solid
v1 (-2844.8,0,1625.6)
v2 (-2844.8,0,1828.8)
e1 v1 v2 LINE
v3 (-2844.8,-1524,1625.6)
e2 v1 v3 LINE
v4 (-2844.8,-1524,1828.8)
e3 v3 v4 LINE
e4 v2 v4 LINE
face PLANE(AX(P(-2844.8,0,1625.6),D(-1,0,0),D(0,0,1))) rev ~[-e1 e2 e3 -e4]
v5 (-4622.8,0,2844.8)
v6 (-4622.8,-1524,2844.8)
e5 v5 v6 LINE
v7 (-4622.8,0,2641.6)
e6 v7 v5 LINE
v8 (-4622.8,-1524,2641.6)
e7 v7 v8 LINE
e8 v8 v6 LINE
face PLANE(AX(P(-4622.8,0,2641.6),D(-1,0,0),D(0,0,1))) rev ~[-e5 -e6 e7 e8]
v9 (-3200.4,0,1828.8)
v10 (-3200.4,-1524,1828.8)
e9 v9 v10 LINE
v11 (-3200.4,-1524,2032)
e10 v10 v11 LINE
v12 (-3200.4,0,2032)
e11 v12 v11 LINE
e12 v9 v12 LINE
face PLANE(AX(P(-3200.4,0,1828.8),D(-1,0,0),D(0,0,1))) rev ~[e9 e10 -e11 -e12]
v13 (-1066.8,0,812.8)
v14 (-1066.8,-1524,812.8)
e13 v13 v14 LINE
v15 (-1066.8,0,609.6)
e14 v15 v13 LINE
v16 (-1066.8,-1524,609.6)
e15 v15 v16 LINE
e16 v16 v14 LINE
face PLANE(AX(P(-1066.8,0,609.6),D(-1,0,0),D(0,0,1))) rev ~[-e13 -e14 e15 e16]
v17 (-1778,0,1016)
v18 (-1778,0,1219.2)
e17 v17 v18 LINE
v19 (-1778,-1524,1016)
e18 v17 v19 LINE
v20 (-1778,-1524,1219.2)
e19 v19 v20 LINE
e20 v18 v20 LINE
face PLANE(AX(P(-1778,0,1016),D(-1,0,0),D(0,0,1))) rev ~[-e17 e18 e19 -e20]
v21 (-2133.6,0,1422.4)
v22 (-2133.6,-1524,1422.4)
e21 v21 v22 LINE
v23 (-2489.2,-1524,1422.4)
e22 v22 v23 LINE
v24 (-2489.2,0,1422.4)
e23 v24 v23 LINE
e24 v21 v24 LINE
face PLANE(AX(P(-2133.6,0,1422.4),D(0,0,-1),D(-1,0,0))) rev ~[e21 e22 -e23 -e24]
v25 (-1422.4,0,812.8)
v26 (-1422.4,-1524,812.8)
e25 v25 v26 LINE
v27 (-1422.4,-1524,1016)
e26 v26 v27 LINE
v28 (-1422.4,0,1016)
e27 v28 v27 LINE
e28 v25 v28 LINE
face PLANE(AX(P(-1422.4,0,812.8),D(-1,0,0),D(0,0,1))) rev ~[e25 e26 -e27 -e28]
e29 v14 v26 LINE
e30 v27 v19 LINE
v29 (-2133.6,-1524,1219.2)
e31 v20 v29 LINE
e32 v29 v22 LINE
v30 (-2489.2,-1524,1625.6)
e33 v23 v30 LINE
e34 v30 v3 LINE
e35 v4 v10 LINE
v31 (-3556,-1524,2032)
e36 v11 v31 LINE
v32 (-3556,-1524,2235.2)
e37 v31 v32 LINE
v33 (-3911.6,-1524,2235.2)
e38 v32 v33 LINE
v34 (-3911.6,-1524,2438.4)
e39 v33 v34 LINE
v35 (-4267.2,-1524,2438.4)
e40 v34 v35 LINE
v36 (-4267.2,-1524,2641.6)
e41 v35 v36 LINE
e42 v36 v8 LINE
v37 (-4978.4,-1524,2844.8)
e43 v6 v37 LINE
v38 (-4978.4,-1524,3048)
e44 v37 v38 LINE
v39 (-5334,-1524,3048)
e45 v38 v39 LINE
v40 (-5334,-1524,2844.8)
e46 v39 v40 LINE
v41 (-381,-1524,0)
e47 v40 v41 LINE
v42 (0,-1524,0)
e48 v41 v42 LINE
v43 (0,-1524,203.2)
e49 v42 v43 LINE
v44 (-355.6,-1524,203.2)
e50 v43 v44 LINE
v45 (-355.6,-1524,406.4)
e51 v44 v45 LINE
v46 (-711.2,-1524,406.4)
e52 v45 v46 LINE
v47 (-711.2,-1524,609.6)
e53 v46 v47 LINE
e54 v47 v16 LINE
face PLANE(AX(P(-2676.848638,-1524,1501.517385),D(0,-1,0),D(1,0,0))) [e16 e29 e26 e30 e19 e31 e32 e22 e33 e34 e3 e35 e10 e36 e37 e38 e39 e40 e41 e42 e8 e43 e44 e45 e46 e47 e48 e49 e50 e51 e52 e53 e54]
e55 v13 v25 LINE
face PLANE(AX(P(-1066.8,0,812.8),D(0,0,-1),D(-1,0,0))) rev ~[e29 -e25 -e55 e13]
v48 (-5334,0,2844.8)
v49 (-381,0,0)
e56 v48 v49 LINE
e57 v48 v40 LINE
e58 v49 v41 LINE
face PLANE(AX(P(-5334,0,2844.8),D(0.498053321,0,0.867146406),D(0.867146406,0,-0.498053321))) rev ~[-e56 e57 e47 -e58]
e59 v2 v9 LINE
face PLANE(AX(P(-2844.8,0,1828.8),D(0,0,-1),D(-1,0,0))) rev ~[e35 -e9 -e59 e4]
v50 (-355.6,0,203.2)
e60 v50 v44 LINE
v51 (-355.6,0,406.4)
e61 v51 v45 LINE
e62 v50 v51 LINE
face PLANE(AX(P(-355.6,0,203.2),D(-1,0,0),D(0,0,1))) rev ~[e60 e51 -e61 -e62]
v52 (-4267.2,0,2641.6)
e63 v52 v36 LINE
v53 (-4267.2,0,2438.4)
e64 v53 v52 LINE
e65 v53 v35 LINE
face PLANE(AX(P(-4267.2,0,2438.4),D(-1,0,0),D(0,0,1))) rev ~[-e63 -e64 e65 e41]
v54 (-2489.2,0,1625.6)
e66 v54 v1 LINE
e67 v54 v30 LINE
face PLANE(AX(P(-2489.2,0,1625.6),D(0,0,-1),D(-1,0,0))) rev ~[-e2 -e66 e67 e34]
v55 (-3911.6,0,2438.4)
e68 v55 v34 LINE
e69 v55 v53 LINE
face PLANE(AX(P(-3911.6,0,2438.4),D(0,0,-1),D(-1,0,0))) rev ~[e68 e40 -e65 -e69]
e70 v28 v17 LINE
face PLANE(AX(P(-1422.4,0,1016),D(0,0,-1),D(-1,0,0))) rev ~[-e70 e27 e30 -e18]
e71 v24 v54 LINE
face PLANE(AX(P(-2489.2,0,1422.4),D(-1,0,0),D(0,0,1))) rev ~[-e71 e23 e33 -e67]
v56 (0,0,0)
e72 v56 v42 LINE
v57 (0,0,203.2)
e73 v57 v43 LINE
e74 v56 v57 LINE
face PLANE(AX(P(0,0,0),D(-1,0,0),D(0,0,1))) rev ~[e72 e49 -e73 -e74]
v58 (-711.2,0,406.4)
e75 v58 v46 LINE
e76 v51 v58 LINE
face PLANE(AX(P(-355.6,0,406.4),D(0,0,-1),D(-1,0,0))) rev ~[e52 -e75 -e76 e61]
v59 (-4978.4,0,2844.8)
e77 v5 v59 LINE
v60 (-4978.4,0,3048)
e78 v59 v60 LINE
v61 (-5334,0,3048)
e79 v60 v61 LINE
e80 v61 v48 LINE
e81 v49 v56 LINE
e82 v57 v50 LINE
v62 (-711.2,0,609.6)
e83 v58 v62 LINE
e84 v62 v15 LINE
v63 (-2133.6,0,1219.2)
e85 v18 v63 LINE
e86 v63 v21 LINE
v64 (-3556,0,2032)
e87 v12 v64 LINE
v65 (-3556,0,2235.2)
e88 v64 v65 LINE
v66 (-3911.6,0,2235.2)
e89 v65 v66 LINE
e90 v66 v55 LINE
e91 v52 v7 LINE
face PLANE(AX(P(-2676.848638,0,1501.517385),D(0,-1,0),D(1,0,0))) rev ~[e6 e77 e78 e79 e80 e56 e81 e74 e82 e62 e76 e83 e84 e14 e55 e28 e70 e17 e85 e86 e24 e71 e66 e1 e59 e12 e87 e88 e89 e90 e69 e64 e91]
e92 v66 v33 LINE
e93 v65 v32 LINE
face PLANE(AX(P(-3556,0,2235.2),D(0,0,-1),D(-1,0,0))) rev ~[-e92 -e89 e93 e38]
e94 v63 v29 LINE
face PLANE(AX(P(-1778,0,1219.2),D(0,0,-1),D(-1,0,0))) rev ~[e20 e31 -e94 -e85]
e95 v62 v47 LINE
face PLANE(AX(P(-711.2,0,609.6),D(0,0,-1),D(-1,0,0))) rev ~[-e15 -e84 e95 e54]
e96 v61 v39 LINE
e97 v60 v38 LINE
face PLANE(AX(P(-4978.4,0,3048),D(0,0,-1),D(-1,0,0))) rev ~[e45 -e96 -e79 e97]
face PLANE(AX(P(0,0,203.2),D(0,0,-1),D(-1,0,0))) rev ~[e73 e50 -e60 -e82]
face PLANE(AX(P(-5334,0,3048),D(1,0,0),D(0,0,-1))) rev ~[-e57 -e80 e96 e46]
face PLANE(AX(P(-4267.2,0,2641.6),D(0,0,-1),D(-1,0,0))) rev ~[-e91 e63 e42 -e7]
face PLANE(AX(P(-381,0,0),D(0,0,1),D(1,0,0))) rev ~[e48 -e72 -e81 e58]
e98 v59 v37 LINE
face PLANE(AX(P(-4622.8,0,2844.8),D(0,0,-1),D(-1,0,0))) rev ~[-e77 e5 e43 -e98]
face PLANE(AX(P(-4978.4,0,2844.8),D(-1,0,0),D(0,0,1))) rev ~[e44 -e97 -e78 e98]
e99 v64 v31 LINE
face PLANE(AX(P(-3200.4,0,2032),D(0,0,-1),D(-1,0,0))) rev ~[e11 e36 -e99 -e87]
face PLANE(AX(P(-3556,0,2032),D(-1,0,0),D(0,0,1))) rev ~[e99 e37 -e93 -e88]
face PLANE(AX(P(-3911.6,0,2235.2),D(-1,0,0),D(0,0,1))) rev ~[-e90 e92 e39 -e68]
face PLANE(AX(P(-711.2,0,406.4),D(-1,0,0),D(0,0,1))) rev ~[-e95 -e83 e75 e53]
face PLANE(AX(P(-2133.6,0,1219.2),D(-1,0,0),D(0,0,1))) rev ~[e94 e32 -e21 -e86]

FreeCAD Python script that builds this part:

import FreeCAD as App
import Part
import Sketcher
from FreeCAD import Vector
Q = App.Units.Quantity

doc = App.newDocument("Part")
body = doc.addObject("PartDesign::Body", "Body")

# Sketch on XZ plane
sketch1 = body.newObject("Sketcher::SketchObject", "Sketch")
sketch1.AttachmentSupport = (doc.getObject("XZ_Plane"), [""])
sketch1.MapMode = "FlatFace"
sketch1.addGeometry([
    Part.LineSegment(Vector(-381, 0, 0), Vector(0, 0, 0)),  # 0
    Part.LineSegment(Vector(0, 0, 0), Vector(0, 203, 0)),  # 1
    Part.LineSegment(Vector(0, 203, 0), Vector(-356, 203, 0)),  # 2
    Part.LineSegment(Vector(-356, 203, 0), Vector(-356, 406, 0)),  # 3
    Part.LineSegment(Vector(-356, 406, 0), Vector(-711, 406, 0)),  # 4
    Part.LineSegment(Vector(-711, 406, 0), Vector(-711, 610, 0)),  # 5
    Part.LineSegment(Vector(-711, 610, 0), Vector(-1067, 610, 0)),  # 6
    Part.LineSegment(Vector(-1067, 610, 0), Vector(-1067, 813, 0)),  # 7
    Part.LineSegment(Vector(-1067, 813, 0), Vector(-1422, 813, 0)),  # 8
    Part.LineSegment(Vector(-1422, 813, 0), Vector(-1422, 1016, 0)),  # 9
    Part.LineSegment(Vector(-1422, 1016, 0), Vector(-1778, 1016, 0)),  # 10
    Part.LineSegment(Vector(-1778, 1016, 0), Vector(-1778, 1219, 0)),  # 11
    Part.LineSegment(Vector(-1778, 1219, 0), Vector(-2134, 1219, 0)),  # 12
    Part.LineSegment(Vector(-2134, 1219, 0), Vector(-2134, 1422, 0)),  # 13
    Part.LineSegment(Vector(-2134, 1422, 0), Vector(-2489, 1422, 0)),  # 14
    Part.LineSegment(Vector(-2489, 1422, 0), Vector(-2489, 1626, 0)),  # 15
    Part.LineSegment(Vector(-2489, 1626, 0), Vector(-2845, 1626, 0)),  # 16
    Part.LineSegment(Vector(-2845, 1626, 0), Vector(-2845, 1829, 0)),  # 17
    Part.LineSegment(Vector(-2845, 1829, 0), Vector(-3200, 1829, 0)),  # 18
    Part.LineSegment(Vector(-3200, 1829, 0), Vector(-3200, 2032, 0)),  # 19
    Part.LineSegment(Vector(-3200, 2032, 0), Vector(-3556, 2032, 0)),  # 20
    Part.LineSegment(Vector(-3556, 2032, 0), Vector(-3556, 2235, 0)),  # 21
    Part.LineSegment(Vector(-3556, 2235, 0), Vector(-3912, 2235, 0)),  # 22
    Part.LineSegment(Vector(-3912, 2235, 0), Vector(-3912, 2438, 0)),  # 23
    Part.LineSegment(Vector(-3912, 2438, 0), Vector(-4267, 2438, 0)),  # 24
    Part.LineSegment(Vector(-4267, 2438, 0), Vector(-4267, 2642, 0)),  # 25
    Part.LineSegment(Vector(-4267, 2642, 0), Vector(-4623, 2642, 0)),  # 26
    Part.LineSegment(Vector(-4623, 2642, 0), Vector(-4623, 2845, 0)),  # 27
    Part.LineSegment(Vector(-4623, 2845, 0), Vector(-4978, 2845, 0)),  # 28
    Part.LineSegment(Vector(-4978, 2845, 0), Vector(-4978, 3048, 0)),  # 29
    Part.LineSegment(Vector(-4978, 3048, 0), Vector(-5334, 3048, 0)),  # 30
    Part.LineSegment(Vector(-5334, 3048, 0), Vector(-5334, 2845, 0)),  # 31
    Part.LineSegment(Vector(-5334, 2845, 0), Vector(-381, 0, 0)),  # 32
], False)
sketch1.addConstraint([
    Sketcher.Constraint("Coincident", 0, 2, 1, 1),
    Sketcher.Constraint("Coincident", 1, 2, 2, 1),
    Sketcher.Constraint("Coincident", 2, 2, 3, 1),
    Sketcher.Constraint("Coincident", 3, 2, 4, 1),
    Sketcher.Constraint("Coincident", 4, 2, 5, 1),
    Sketcher.Constraint("Coincident", 5, 2, 6, 1),
    Sketcher.Constraint("Coincident", 6, 2, 7, 1),
    Sketcher.Constraint("Coincident", 7, 2, 8, 1),
    Sketcher.Constraint("Coincident", 8, 2, 9, 1),
    Sketcher.Constraint("Coincident", 9, 2, 10, 1),
    Sketcher.Constraint("Coincident", 10, 2, 11, 1),
    Sketcher.Constraint("Coincident", 11, 2, 12, 1),
    Sketcher.Constraint("Coincident", 12, 2, 13, 1),
    Sketcher.Constraint("Coincident", 13, 2, 14, 1),
    Sketcher.Constraint("Coincident", 14, 2, 15, 1),
    Sketcher.Constraint("Coincident", 15, 2, 16, 1),
    Sketcher.Constraint("Coincident", 16, 2, 17, 1),
    Sketcher.Constraint("Coincident", 17, 2, 18, 1),
    Sketcher.Constraint("Coincident", 18, 2, 19, 1),
    Sketcher.Constraint("Coincident", 19, 2, 20, 1),
    Sketcher.Constraint("Coincident", 20, 2, 21, 1),
    Sketcher.Constraint("Coincident", 21, 2, 22, 1),
    Sketcher.Constraint("Coincident", 22, 2, 23, 1),
    Sketcher.Constraint("Coincident", 23, 2, 24, 1),
    Sketcher.Constraint("Coincident", 24, 2, 25, 1),
    Sketcher.Constraint("Coincident", 25, 2, 26, 1),
    Sketcher.Constraint("Coincident", 26, 2, 27, 1),
    Sketcher.Constraint("Coincident", 27, 2, 28, 1),
    Sketcher.Constraint("Coincident", 28, 2, 29, 1),
    Sketcher.Constraint("Coincident", 29, 2, 30, 1),
    Sketcher.Constraint("Coincident", 30, 2, 31, 1),
    Sketcher.Constraint("Coincident", 31, 2, 32, 1),
    Sketcher.Constraint("Coincident", 32, 2, 0, 1),
    Sketcher.Constraint("Horizontal", 0),
    Sketcher.Constraint("Vertical", 1),
    Sketcher.Constraint("Horizontal", 2),
    Sketcher.Constraint("Vertical", 3),
    Sketcher.Constraint("Horizontal", 4),
    Sketcher.Constraint("Vertical", 5),
    Sketcher.Constraint("Horizontal", 6),
    Sketcher.Constraint("Vertical", 7),
    Sketcher.Constraint("Horizontal", 8),
    Sketcher.Constraint("Vertical", 9),
    Sketcher.Constraint("Horizontal", 10),
    Sketcher.Constraint("Vertical", 11),
    Sketcher.Constraint("Horizontal", 12),
    Sketcher.Constraint("Vertical", 13),
    Sketcher.Constraint("Horizontal", 14),
    Sketcher.Constraint("Vertical", 15),
    Sketcher.Constraint("Horizontal", 16),
    Sketcher.Constraint("Vertical", 17),
    Sketcher.Constraint("Horizontal", 18),
    Sketcher.Constraint("Vertical", 19),
    Sketcher.Constraint("Horizontal", 20),
    Sketcher.Constraint("Vertical", 21),
    Sketcher.Constraint("Horizontal", 22),
    Sketcher.Constraint("Vertical", 23),
    Sketcher.Constraint("Horizontal", 24),
    Sketcher.Constraint("Vertical", 25),
    Sketcher.Constraint("Horizontal", 26),
    Sketcher.Constraint("Vertical", 27),
    Sketcher.Constraint("Horizontal", 28),
    Sketcher.Constraint("Vertical", 29),
    Sketcher.Constraint("Horizontal", 30),
    Sketcher.Constraint("Vertical", 31),
    Sketcher.Constraint("Coincident", 0, 2, -1, 1),
    Sketcher.Constraint("Horizontal", 28, 2, 31, 2),
    Sketcher.Constraint("Equal", 2, 4),
    Sketcher.Constraint("Equal", 4, 6),
    Sketcher.Constraint("Equal", 6, 8),
    Sketcher.Constraint("Equal", 8, 10),
    Sketcher.Constraint("Equal", 10, 12),
    Sketcher.Constraint("Equal", 12, 14),
    Sketcher.Constraint("Equal", 14, 16),
    Sketcher.Constraint("Equal", 16, 18),
    Sketcher.Constraint("Equal", 18, 20),
    Sketcher.Constraint("Equal", 20, 22),
    Sketcher.Constraint("Equal", 22, 24),
    Sketcher.Constraint("Equal", 24, 26),
    Sketcher.Constraint("Equal", 26, 28),
    Sketcher.Constraint("Equal", 28, 30),
    Sketcher.Constraint("Equal", 1, 3),
    Sketcher.Constraint("Equal", 3, 5),
    Sketcher.Constraint("Equal", 5, 7),
    Sketcher.Constraint("Equal", 7, 9),
    Sketcher.Constraint("Equal", 9, 11),
    Sketcher.Constraint("Equal", 11, 13),
    Sketcher.Constraint("Equal", 13, 15),
    Sketcher.Constraint("Equal", 15, 17),
    Sketcher.Constraint("Equal", 17, 19),
    Sketcher.Constraint("Equal", 19, 21),
    Sketcher.Constraint("Equal", 21, 23),
    Sketcher.Constraint("Equal", 23, 25),
    Sketcher.Constraint("Equal", 25, 27),
    Sketcher.Constraint("Equal", 27, 29),
    Sketcher.Constraint("DistanceX", 0, 1, 0, 2, Q("15 in")),
    Sketcher.Constraint("DistanceX", 2, 2, 2, 1, Q("14 in")),
    Sketcher.Constraint("DistanceY", 1, 1, 1, 2, Q("8 in")),
])
pad1 = body.newObject("PartDesign::Pad", "Pad")
pad1.Profile = sketch1
pad1.Length = Q("60 in")

doc.recompute()
